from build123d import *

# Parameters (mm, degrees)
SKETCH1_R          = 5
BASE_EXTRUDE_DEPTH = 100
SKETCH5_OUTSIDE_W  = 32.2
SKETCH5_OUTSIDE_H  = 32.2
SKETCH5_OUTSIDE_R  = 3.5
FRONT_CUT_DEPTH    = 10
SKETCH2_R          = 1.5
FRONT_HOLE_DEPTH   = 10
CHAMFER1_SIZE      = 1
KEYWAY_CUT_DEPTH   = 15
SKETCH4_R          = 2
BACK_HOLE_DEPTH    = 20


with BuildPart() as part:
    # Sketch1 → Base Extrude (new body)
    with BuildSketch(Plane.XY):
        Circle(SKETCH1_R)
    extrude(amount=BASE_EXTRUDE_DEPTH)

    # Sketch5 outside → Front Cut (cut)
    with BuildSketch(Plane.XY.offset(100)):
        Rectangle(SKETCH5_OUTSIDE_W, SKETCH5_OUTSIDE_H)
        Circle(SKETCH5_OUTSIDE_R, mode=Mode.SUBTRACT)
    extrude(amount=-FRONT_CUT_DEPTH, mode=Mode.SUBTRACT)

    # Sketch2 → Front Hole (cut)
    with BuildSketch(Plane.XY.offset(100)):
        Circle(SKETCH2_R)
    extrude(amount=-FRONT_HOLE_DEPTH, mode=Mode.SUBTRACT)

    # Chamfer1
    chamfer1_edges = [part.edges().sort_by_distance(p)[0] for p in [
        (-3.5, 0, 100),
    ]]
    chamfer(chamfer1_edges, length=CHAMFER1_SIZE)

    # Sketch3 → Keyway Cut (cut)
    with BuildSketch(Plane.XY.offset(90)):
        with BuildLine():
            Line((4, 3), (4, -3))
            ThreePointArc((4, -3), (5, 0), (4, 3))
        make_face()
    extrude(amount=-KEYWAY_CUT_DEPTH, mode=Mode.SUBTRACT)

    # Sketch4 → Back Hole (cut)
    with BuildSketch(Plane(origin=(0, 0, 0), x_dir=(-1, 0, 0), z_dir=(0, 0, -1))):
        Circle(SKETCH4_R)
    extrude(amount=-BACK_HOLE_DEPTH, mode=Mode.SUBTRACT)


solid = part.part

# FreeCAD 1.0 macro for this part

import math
import FreeCAD as App
import Part
import Sketcher
Q = App.Units.Quantity


def edges_at(feature, points):
    """Names of the edges that pass closest to the given points."""
    edges = feature.Shape.Edges
    near = lambda p: min(range(len(edges)), key=lambda i: edges[i].distToShape(Part.Vertex(*p))[0])
    return sorted({f"Edge{near(p) + 1}" for p in points})


def add_polygon(sketch, points):
    """Adds a closed chain of lines whose ends are joined by coincident constraints."""
    first, n = sketch.GeometryCount, len(points)
    for a, b in zip(points, points[1:] + points[:1]):
        sketch.addGeometry(Part.LineSegment(App.Vector(*a, 0), App.Vector(*b, 0)), False)
    for i in range(n):
        sketch.addConstraint(Sketcher.Constraint("Coincident", first + i, 2, first + (i + 1) % n, 1))

doc = App.newDocument("Part")
body = doc.addObject("PartDesign::Body", "Body")

# Sketch on XY plane
sketch1 = body.newObject("Sketcher::SketchObject", "Sketch")
sketch1.AttachmentSupport = (doc.getObject("XY_Plane"), [""])
sketch1.MapMode = "FlatFace"
sketch1.addGeometry(Part.Circle(App.Vector(0, 0, 0), App.Vector(0, 0, 1), 5), False)
sketch1.addConstraint([
    Sketcher.Constraint("Coincident", 0, 3, -1, 1),
    Sketcher.Constraint("Diameter", 0, Q("10 mm")),
])
pad1 = body.newObject("PartDesign::Pad", "Pad")
pad1.Profile = sketch1
pad1.Length = 100

# Sketch on XY plane
sketch2 = body.newObject("Sketcher::SketchObject", "Sketch001")
sketch2.AttachmentSupport = (doc.getObject("XY_Plane"), [""])
sketch2.MapMode = "FlatFace"
sketch2.AttachmentOffset = App.Placement(App.Vector(0, 0, 100), App.Rotation())
add_polygon(sketch2, [(-16.1, 16.1), (-16.1, -16.1), (16.1, -16.1), (16.1, 16.1)])  # lines 0-3
sketch2.addGeometry(Part.Circle(App.Vector(0, 0, 0), App.Vector(0, 0, 1), 3.5), False)  # 4
sketch2.addConstraint([
    Sketcher.Constraint("Vertical", 0),
    Sketcher.Constraint("Horizontal", 1),
    Sketcher.Constraint("Vertical", 2),
    Sketcher.Constraint("Horizontal", 3),
    Sketcher.Constraint("Coincident", 4, 3, -1, 1),
    Sketcher.Constraint("Symmetric", 0, 2, 2, 2, -1, 1),
    Sketcher.Constraint("Equal", 3, 0),
    Sketcher.Constraint("Diameter", 4, Q("7 mm")),
    Sketcher.Constraint("DistanceX", 1, 1, 1, 2, Q("32.2 mm")),
])
pocket1 = body.newObject("PartDesign::Pocket", "Pocket")
pocket1.Profile = sketch2
pocket1.Length = 10

# Sketch on XY plane
sketch3 = body.newObject("Sketcher::SketchObject", "Sketch002")
sketch3.AttachmentSupport = (doc.getObject("XY_Plane"), [""])
sketch3.MapMode = "FlatFace"
sketch3.AttachmentOffset = App.Placement(App.Vector(0, 0, 100), App.Rotation())
sketch3.addGeometry(Part.Circle(App.Vector(0, 0, 0), App.Vector(0, 0, 1), 1.5), False)
sketch3.addConstraint([
    Sketcher.Constraint("Coincident", 0, 3, -1, 1),
    Sketcher.Constraint("Diameter", 0, Q("3 mm")),
])
pocket2 = body.newObject("PartDesign::Pocket", "Pocket001")
pocket2.Profile = sketch3
pocket2.Length = 10
doc.recompute()

chamfer = body.newObject("PartDesign::Chamfer", "Chamfer")
chamfer.Base = (pocket2, edges_at(pocket2, [(-3.5, 0, 100)]))
chamfer.Size = 1

# Sketch on XY plane
sketch4 = body.newObject("Sketcher::SketchObject", "Sketch003")
sketch4.AttachmentSupport = (doc.getObject("XY_Plane"), [""])
sketch4.MapMode = "FlatFace"
sketch4.AttachmentOffset = App.Placement(App.Vector(0, 0, 90), App.Rotation())
sketch4.addGeometry([
    Part.LineSegment(App.Vector(4, 3, 0), App.Vector(4, -3, 0)),
    Part.ArcOfCircle(Part.Circle(App.Vector(0, 0, 0), App.Vector(0, 0, 1), 5), math.radians(-37), math.radians(37)),
], False)
sketch4.addConstraint([
    Sketcher.Constraint("Coincident", 0, 1, 1, 2),
    Sketcher.Constraint("Coincident", 1, 1, 0, 2),
    Sketcher.Constraint("Vertical", 0),
    Sketcher.Constraint("Coincident", 1, 3, -1, 1),
    Sketcher.Constraint("Radius", 1, Q("5 mm")),
    Sketcher.Constraint("DistanceY", 0, 2, 0, 1, Q("6 mm")),
])
pocket3 = body.newObject("PartDesign::Pocket", "Pocket002")
pocket3.Profile = sketch4
pocket3.Length = 15

# Sketch on XY plane
sketch5 = body.newObject("Sketcher::SketchObject", "Sketch004")
sketch5.AttachmentSupport = (doc.getObject("XY_Plane"), [""])
sketch5.MapMode = "FlatFace"
sketch5.addGeometry(Part.Circle(App.Vector(0, 0, 0), App.Vector(0, 0, 1), 2), False)
sketch5.addConstraint([
    Sketcher.Constraint("Coincident", 0, 3, -1, 1),
    Sketcher.Constraint("Diameter", 0, Q("4 mm")),
])
pocket4 = body.newObject("PartDesign::Pocket", "Pocket003")
pocket4.Profile = sketch5
pocket4.Length = 20
pocket4.Reversed = True

doc.recompute()
